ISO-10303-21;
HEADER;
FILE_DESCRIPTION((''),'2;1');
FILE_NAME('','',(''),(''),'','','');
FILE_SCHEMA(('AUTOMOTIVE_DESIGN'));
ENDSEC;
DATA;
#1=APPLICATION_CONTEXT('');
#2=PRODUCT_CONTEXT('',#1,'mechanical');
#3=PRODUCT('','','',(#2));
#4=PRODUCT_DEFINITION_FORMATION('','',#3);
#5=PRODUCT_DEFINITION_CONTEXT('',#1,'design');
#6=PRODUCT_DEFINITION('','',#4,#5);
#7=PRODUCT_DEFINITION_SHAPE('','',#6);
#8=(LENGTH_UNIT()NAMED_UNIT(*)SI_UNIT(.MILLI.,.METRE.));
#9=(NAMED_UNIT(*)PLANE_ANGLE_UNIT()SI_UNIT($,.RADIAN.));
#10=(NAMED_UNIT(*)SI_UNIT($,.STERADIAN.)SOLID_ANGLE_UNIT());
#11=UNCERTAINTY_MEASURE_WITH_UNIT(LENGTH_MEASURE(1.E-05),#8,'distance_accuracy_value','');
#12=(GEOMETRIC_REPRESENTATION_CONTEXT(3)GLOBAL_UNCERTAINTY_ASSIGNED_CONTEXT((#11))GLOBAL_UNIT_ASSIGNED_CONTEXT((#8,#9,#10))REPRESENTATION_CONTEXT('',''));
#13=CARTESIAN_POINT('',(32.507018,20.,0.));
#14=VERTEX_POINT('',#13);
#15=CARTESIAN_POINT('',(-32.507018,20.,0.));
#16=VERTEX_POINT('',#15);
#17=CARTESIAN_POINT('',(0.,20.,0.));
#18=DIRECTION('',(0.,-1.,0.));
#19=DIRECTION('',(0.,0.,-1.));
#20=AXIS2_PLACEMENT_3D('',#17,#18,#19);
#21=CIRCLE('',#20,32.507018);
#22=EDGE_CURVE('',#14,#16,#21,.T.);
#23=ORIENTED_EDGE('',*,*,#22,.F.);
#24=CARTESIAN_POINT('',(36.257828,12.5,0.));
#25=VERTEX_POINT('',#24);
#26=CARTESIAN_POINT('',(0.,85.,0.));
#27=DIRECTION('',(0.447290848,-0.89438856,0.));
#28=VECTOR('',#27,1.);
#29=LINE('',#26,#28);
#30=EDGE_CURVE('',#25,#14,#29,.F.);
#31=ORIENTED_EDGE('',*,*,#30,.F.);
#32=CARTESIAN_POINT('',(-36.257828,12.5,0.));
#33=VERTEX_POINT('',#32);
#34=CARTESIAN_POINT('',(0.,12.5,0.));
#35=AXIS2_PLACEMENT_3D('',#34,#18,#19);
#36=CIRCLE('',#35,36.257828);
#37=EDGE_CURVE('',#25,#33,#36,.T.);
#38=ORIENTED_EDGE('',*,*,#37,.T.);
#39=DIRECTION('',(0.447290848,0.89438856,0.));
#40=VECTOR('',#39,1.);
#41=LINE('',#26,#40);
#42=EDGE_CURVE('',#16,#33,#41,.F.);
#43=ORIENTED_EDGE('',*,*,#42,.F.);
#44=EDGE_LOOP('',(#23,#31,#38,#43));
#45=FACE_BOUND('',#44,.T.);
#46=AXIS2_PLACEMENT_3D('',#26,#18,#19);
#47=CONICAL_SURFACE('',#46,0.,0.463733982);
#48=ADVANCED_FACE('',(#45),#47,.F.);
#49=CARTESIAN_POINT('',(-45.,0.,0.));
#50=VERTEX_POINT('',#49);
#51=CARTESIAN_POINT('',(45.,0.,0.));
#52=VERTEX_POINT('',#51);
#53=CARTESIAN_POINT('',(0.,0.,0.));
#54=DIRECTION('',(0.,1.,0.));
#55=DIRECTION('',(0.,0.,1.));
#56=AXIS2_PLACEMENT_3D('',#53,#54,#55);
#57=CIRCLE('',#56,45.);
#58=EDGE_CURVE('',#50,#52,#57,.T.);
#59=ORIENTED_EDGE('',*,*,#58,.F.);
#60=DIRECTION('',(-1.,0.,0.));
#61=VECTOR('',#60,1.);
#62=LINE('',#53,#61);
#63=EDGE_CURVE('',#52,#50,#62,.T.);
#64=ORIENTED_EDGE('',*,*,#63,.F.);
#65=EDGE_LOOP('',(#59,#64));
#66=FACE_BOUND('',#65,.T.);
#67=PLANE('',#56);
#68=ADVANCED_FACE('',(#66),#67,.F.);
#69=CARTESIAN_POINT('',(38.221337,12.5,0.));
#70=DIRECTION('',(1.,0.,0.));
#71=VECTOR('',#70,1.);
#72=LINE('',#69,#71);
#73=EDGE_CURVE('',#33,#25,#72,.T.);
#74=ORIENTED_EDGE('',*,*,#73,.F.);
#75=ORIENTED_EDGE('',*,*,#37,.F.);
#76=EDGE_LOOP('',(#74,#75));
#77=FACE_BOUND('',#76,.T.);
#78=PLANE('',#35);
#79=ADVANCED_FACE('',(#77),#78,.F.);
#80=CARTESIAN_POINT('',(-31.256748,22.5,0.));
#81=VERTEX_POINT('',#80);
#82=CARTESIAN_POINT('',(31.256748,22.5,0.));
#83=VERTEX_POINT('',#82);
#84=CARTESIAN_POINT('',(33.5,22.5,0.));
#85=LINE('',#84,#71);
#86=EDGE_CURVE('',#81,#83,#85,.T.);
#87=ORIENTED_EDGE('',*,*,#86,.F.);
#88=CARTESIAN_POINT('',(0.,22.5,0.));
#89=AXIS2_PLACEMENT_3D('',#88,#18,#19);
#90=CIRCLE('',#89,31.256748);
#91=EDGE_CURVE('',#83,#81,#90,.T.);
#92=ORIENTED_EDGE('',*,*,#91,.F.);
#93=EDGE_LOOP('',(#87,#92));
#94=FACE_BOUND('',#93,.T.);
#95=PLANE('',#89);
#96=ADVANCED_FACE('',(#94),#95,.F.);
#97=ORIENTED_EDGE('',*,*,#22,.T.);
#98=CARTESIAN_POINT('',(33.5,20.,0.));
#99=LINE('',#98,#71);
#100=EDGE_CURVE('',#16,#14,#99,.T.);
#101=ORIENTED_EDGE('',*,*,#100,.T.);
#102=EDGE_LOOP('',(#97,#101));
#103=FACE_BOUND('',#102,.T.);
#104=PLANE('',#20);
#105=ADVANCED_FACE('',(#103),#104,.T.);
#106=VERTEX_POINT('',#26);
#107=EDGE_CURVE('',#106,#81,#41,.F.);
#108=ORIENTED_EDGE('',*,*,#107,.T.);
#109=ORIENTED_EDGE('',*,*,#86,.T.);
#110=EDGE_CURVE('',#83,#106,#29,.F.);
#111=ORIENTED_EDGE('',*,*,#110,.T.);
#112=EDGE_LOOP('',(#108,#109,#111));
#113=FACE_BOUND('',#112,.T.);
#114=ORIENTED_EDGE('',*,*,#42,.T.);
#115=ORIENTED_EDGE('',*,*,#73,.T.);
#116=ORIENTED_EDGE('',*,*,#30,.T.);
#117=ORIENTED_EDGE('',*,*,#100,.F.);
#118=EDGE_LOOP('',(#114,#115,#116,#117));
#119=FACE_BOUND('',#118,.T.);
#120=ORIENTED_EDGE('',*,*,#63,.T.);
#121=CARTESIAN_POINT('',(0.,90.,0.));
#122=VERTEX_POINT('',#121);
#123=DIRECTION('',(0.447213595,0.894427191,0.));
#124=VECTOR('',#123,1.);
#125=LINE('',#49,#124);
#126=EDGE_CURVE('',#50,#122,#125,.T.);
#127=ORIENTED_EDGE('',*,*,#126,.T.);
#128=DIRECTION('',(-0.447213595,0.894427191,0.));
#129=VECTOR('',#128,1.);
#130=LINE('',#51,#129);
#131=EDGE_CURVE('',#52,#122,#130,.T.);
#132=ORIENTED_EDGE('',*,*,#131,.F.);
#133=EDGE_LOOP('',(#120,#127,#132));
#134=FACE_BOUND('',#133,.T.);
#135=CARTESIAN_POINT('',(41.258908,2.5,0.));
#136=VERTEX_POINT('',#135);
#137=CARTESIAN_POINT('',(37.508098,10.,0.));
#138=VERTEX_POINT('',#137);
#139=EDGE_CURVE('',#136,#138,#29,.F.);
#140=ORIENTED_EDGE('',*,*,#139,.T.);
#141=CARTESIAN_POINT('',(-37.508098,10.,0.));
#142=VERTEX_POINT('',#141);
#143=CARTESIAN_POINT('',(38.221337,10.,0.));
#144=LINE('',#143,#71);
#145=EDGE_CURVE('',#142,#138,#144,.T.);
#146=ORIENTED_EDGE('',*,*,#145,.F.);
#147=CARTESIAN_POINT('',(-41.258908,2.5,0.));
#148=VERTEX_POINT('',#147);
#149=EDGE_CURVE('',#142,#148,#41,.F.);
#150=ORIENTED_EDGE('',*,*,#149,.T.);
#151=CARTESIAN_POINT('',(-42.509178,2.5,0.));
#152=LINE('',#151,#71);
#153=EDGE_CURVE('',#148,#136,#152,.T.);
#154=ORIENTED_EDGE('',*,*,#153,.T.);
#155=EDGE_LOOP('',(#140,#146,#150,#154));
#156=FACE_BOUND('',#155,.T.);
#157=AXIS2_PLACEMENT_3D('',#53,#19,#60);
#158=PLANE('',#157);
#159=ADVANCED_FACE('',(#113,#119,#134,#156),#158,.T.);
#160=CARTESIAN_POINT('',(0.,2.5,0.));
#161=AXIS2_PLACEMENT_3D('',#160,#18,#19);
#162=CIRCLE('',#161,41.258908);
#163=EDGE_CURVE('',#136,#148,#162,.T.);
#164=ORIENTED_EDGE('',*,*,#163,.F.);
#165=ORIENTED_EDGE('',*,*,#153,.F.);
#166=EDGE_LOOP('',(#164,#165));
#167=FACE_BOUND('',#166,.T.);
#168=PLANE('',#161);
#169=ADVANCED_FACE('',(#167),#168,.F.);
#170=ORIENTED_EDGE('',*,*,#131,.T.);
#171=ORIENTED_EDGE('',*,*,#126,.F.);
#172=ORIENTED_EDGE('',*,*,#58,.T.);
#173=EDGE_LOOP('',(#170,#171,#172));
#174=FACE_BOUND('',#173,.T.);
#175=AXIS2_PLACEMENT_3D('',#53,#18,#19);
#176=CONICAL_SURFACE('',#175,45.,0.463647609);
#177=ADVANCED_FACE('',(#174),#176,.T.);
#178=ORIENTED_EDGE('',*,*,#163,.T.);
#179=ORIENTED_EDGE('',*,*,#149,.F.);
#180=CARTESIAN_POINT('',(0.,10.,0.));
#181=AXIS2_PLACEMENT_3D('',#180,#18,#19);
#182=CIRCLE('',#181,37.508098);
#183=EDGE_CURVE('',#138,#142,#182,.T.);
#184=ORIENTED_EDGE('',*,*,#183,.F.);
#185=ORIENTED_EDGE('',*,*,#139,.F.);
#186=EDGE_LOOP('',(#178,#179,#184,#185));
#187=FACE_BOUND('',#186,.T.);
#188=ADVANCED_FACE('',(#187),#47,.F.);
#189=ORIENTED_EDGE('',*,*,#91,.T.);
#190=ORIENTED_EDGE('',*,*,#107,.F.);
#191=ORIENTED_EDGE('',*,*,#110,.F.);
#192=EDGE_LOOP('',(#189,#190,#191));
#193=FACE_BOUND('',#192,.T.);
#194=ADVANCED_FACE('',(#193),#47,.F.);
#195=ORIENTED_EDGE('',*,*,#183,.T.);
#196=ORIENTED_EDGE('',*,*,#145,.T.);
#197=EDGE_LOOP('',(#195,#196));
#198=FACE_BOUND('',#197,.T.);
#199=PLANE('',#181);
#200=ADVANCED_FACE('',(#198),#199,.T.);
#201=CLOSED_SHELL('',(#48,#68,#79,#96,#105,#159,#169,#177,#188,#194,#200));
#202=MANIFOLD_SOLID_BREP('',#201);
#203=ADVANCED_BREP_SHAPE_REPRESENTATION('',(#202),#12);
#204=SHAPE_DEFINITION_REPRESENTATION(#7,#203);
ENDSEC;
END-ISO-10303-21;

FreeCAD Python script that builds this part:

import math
import FreeCAD as App
import Part
import Sketcher
from FreeCAD import Vector
Q = App.Units.Quantity

doc = App.newDocument("Part")
body = doc.addObject("PartDesign::Body", "Body")

# Sketch on XY plane
sketch1 = doc.addObject("Sketcher::SketchObject", "Sketch")
body.addObject(sketch1)
sketch1.AttachmentSupport = (doc.XY_Plane, [""])
sketch1.MapMode = "FlatFace"
sketch1.addGeometry([
    Part.LineSegment(Vector(0, 0, 0), Vector(45, 0, 0)),
    Part.LineSegment(Vector(45, 0, 0), Vector(0, 90, 0)),
    Part.LineSegment(Vector(0, 90, 0), Vector(0, 0, 0)),
], False)
sketch1.addConstraint([
    Sketcher.Constraint("Coincident", 0, 2, 1, 1),
    Sketcher.Constraint("Coincident", 1, 2, 2, 1),
    Sketcher.Constraint("Coincident", 2, 2, 0, 1),
    Sketcher.Constraint("Horizontal", 0),
    Sketcher.Constraint("Vertical", 2),
    Sketcher.Constraint("Coincident", 2, 2, -1, 1),
    Sketcher.Constraint("DistanceX", 0, 1, 0, 2, Q("45 mm")),
    Sketcher.Constraint("DistanceY", 2, 2, 2, 1, Q("90 mm")),
])
revolution = doc.addObject("PartDesign::Revolution", "Revolution")
body.addObject(revolution)
revolution.Profile = sketch1
revolution.ReferenceAxis = (sketch1, ["V_Axis"])
revolution.Angle = 180
revolution.Reversed = True

# Sketch on XY plane
sketch2 = doc.addObject("Sketcher::SketchObject", "Sketch001")
body.addObject(sketch2)
sketch2.AttachmentSupport = (doc.XY_Plane, [""])
sketch2.MapMode = "FlatFace"
sketch2.addGeometry([
    Part.LineSegment(Vector(0, 0, 0), Vector(0, 85, 0)),
    Part.LineSegment(Vector(0, 85, 0), Vector(42.509178, 0, 0)),
    Part.LineSegment(Vector(42.509178, 0, 0), Vector(0, 0, 0)),
], False)
sketch2.addConstraint([
    Sketcher.Constraint("Coincident", 0, 2, 1, 1),
    Sketcher.Constraint("Coincident", 1, 2, 2, 1),
    Sketcher.Constraint("Coincident", 2, 2, 0, 1),
    Sketcher.Constraint("Vertical", 0),
    Sketcher.Constraint("Horizontal", 2),
    Sketcher.Constraint("Coincident", 2, 2, -1, 1),
    Sketcher.Constraint("DistanceY", 0, 1, 0, 2, Q("85 mm")),
    Sketcher.Constraint("Angle", 1, Q("-63.43 deg")),
])
groove = doc.addObject("PartDesign::Groove", "Groove")
body.addObject(groove)
groove.Profile = sketch2
groove.ReferenceAxis = (sketch2, ["V_Axis"])
groove.Angle = 360

# Sketch on XZ plane
sketch3 = doc.addObject("Sketcher::SketchObject", "Sketch002")
body.addObject(sketch3)
sketch3.AttachmentSupport = (doc.XZ_Plane, [""])
sketch3.MapMode = "FlatFace"
sketch3.addGeometry([
    Part.LineSegment(Vector(-42.509178, 0, 0), Vector(42.509178, 0, 0)),
    Part.ArcOfCircle(Part.Circle(Vector(0, 0, 0), Vector(0, 0, 1), 42.509178), math.radians(0), math.radians(180)),
], False)
sketch3.addConstraint([
    Sketcher.Constraint("Coincident", 0, 1, 1, 2),
    Sketcher.Constraint("Coincident", 1, 1, 0, 2),
    Sketcher.Constraint("Horizontal", 0),
    Sketcher.Constraint("Coincident", 1, 3, -1, 1),
    Sketcher.Constraint("PointOnObject", 0, 1, -1),
    Sketcher.Constraint("Radius", 1, Q("42.509178 mm")),
])
pad1 = doc.addObject("PartDesign::Pad", "Pad")
body.addObject(pad1)
pad1.Profile = sketch3
pad1.Length = 2.5
pad1.Reversed = True

# Sketch on XZ plane
sketch4 = doc.addObject("Sketcher::SketchObject", "Sketch003")
body.addObject(sketch4)
sketch4.AttachmentSupport = (doc.XZ_Plane, [""])
sketch4.MapMode = "FlatFace"
sketch4.AttachmentOffset = App.Placement(Vector(0, 0, -10), App.Rotation())
sketch4.addGeometry([
    Part.LineSegment(Vector(-38.221337, 0, 0), Vector(38.221337, 0, 0)),
    Part.ArcOfCircle(Part.Circle(Vector(0, 0, 0), Vector(0, 0, 1), 38.221337), math.radians(0), math.radians(180)),
], False)
sketch4.addConstraint([
    Sketcher.Constraint("Coincident", 0, 1, 1, 2),
    Sketcher.Constraint("Coincident", 1, 1, 0, 2),
    Sketcher.Constraint("Horizontal", 0),
    Sketcher.Constraint("Coincident", 1, 3, -1, 1),
    Sketcher.Constraint("PointOnObject", 0, 1, -1),
    Sketcher.Constraint("Radius", 1, Q("38.221337 mm")),
])
pad2 = doc.addObject("PartDesign::Pad", "Pad001")
body.addObject(pad2)
pad2.Profile = sketch4
pad2.Length = 2.5
pad2.Reversed = True

# Sketch on XZ plane
sketch5 = doc.addObject("Sketcher::SketchObject", "Sketch004")
body.addObject(sketch5)
sketch5.AttachmentSupport = (doc.XZ_Plane, [""])
sketch5.MapMode = "FlatFace"
sketch5.AttachmentOffset = App.Placement(Vector(0, 0, -20), App.Rotation())
sketch5.addGeometry([
    Part.LineSegment(Vector(-33.5, 0, 0), Vector(33.5, 0, 0)),
    Part.ArcOfCircle(Part.Circle(Vector(0, 0, 0), Vector(0, 0, 1), 33.5), math.radians(0), math.radians(180)),
], False)
sketch5.addConstraint([
    Sketcher.Constraint("Coincident", 0, 1, 1, 2),
    Sketcher.Constraint("Coincident", 1, 1, 0, 2),
    Sketcher.Constraint("Horizontal", 0),
    Sketcher.Constraint("Coincident", 1, 3, -1, 1),
    Sketcher.Constraint("PointOnObject", 0, 1, -1),
    Sketcher.Constraint("Radius", 1, Q("33.5 mm")),
])
pad3 = doc.addObject("PartDesign::Pad", "Pad002")
body.addObject(pad3)
pad3.Profile = sketch5
pad3.Length = 2.5
pad3.Reversed = True

doc.recompute()
